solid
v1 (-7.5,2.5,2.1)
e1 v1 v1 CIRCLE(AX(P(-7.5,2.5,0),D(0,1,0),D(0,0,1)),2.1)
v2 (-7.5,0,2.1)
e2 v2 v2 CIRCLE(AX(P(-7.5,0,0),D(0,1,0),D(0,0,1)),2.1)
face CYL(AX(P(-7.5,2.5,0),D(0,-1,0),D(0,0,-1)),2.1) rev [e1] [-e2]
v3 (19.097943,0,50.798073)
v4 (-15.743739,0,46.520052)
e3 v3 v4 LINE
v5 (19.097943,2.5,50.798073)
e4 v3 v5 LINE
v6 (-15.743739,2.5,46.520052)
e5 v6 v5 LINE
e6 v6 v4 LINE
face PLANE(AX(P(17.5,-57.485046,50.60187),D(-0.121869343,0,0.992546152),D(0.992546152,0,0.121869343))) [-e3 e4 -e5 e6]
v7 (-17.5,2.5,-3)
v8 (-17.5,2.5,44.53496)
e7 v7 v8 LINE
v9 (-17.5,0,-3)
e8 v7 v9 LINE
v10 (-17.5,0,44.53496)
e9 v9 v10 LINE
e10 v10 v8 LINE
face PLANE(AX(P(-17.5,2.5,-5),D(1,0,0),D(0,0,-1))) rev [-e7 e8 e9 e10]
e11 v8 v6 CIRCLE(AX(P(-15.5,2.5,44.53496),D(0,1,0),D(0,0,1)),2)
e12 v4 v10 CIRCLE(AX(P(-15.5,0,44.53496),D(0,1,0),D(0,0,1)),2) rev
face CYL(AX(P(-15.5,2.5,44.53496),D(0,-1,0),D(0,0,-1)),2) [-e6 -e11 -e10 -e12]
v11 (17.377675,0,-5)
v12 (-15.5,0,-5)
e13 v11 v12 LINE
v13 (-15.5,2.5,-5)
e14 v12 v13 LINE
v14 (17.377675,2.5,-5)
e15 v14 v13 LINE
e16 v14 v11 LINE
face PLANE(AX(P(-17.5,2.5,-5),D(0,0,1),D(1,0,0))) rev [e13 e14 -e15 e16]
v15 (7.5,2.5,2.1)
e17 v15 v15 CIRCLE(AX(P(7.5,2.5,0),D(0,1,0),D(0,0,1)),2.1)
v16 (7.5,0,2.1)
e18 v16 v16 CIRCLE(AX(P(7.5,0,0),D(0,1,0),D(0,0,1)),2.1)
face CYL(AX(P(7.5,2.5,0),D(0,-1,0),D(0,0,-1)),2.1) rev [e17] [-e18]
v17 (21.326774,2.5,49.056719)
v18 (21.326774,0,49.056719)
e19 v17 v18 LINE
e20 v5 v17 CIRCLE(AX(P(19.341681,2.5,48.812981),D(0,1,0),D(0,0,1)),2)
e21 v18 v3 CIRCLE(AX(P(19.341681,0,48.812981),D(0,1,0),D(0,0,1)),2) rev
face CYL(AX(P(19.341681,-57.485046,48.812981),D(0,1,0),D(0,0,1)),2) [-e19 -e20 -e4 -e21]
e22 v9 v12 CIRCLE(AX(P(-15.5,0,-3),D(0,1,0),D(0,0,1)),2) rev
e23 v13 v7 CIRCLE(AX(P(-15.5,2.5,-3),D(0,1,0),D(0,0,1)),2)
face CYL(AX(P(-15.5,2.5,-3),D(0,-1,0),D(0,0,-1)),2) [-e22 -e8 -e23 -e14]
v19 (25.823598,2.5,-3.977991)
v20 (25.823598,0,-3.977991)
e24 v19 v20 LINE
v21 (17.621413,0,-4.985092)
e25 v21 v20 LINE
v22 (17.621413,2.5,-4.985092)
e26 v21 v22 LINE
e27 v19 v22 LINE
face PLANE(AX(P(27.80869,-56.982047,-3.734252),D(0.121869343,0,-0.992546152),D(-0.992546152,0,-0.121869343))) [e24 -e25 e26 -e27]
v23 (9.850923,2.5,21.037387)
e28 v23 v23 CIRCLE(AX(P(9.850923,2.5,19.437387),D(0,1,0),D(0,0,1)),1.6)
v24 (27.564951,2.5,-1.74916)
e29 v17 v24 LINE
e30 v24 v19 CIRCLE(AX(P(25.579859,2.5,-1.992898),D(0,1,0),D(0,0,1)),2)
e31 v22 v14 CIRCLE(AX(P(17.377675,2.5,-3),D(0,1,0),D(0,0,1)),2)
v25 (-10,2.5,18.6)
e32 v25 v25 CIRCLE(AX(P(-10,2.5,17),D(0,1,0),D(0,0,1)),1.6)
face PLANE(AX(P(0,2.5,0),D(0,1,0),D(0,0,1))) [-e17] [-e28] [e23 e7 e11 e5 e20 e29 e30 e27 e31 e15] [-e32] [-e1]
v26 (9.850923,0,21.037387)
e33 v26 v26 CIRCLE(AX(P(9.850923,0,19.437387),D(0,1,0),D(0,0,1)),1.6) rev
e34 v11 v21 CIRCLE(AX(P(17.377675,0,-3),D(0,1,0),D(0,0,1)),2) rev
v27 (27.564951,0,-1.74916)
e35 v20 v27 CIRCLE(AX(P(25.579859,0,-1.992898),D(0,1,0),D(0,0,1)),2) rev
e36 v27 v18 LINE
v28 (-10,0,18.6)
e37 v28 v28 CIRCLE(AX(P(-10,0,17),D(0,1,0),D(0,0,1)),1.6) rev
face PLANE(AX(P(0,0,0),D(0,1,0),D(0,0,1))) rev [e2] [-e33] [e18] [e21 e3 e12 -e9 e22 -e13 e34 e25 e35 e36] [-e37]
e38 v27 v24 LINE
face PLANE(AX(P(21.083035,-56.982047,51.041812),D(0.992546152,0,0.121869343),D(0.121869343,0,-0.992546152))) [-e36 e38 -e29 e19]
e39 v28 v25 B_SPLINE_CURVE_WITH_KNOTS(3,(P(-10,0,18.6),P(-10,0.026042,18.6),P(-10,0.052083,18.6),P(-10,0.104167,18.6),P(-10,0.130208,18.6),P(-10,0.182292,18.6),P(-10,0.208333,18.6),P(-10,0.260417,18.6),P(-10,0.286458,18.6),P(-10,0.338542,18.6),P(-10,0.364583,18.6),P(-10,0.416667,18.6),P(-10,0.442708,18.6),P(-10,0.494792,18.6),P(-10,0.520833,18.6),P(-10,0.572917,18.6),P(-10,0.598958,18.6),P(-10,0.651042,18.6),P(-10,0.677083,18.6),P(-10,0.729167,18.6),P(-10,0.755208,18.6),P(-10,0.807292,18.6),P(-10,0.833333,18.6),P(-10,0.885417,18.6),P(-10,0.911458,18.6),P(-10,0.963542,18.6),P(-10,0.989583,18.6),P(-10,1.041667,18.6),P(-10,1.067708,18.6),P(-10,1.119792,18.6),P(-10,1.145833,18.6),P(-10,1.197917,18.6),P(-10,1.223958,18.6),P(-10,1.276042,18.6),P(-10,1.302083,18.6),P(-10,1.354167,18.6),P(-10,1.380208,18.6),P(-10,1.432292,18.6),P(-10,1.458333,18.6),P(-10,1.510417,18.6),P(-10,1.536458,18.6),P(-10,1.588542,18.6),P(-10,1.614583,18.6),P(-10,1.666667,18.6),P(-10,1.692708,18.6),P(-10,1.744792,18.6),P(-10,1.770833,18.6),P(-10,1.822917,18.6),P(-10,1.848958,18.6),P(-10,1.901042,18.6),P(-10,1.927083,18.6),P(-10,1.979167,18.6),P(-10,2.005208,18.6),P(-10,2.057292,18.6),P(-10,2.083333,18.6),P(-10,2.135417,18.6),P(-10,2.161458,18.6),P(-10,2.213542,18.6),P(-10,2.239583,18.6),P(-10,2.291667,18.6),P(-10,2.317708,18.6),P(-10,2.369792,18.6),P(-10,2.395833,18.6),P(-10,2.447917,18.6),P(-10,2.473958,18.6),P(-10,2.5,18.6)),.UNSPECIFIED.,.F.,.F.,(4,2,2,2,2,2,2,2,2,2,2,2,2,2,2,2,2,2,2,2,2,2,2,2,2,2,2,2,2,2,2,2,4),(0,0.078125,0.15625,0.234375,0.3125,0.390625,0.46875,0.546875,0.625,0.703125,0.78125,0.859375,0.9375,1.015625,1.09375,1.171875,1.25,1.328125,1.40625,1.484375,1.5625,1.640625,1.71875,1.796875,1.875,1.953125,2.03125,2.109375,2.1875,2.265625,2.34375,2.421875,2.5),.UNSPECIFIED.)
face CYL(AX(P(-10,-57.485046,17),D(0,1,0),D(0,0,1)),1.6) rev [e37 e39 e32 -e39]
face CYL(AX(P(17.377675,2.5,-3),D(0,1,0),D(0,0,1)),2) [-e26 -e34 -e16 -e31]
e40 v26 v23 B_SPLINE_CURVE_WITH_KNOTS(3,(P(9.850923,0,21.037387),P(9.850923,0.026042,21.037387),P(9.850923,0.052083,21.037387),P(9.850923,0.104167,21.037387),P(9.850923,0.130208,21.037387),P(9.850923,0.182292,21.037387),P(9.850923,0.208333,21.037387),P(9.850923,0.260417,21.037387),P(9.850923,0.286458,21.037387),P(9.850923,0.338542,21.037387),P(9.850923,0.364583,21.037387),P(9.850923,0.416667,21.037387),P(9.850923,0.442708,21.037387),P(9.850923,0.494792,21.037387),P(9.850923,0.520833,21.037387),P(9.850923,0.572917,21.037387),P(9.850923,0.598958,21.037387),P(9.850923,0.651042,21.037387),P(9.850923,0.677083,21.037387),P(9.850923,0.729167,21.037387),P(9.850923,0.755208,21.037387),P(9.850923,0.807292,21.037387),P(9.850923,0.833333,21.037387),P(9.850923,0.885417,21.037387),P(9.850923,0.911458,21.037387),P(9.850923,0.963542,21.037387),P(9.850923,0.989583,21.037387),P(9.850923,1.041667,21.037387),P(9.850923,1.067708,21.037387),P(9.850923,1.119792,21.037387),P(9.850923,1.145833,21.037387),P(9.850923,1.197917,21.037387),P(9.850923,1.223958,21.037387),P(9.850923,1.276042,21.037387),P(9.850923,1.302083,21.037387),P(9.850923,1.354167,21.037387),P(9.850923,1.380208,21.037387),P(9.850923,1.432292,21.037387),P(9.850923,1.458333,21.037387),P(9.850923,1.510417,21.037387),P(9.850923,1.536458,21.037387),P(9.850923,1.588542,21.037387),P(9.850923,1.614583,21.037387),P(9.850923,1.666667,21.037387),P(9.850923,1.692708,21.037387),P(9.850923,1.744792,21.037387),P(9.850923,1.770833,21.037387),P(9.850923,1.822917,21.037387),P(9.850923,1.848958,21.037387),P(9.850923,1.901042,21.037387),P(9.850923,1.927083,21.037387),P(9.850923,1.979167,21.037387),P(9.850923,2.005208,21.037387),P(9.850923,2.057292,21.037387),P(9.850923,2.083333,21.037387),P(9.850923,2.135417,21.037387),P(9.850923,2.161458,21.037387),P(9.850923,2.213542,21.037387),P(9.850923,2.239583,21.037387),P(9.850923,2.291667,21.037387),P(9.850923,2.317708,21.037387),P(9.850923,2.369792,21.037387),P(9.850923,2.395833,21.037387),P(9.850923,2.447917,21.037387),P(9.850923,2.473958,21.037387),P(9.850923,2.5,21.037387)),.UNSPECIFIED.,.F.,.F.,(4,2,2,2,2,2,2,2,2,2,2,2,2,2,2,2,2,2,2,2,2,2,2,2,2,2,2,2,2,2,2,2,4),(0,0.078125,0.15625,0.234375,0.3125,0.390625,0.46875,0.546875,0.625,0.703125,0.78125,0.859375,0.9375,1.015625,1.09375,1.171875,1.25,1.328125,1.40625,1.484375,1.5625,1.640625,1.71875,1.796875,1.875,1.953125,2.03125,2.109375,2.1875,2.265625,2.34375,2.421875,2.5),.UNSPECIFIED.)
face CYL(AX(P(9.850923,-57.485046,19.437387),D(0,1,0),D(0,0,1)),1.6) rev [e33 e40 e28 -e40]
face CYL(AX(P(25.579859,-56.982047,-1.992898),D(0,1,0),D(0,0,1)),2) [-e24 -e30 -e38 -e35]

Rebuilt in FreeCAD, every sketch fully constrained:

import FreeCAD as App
import Part
import Sketcher
from FreeCAD import Vector
Q = App.Units.Quantity


def edges_at(feature, points):
    """Names of the edges that pass closest to the given points."""
    edges = feature.Shape.Edges
    near = lambda p: min(range(len(edges)), key=lambda i: edges[i].distToShape(Part.Vertex(*p))[0])
    return sorted({f"Edge{near(p) + 1}" for p in points})


def add_polygon(sketch, points):
    """Adds a closed chain of lines whose ends are joined by coincident constraints."""
    first, n = sketch.GeometryCount, len(points)
    for a, b in zip(points, points[1:] + points[:1]):
        sketch.addGeometry(Part.LineSegment(App.Vector(*a, 0), App.Vector(*b, 0)), False)
    for i in range(n):
        sketch.addConstraint(Sketcher.Constraint("Coincident", first + i, 2, first + (i + 1) % n, 1))

doc = App.newDocument("Part")
body = doc.addObject("PartDesign::Body", "Body")

sketch1 = body.newObject("Sketcher::SketchObject", "Sketch")
sketch1.AttachmentSupport = (doc.getObject("XZ_Plane"), [""])
sketch1.MapMode = "FlatFace"
add_polygon(sketch1, [(-17.5, -5), (-17.5, 5), (17.5, 5), (17.5, -5)])
sketch1.addGeometry(Part.Circle(Vector(-7.5, 0, 0), Vector(0, 0, 1), 2.1), False)
sketch1.addGeometry(Part.Circle(Vector(7.5, 0, 0), Vector(0, 0, 1), 2.1), False)
sketch1.addConstraint([
    Sketcher.Constraint("Vertical", 0),
    Sketcher.Constraint("Horizontal", 1),
    Sketcher.Constraint("Vertical", 2),
    Sketcher.Constraint("Horizontal", 3),
    Sketcher.Constraint("Equal", 4, 5),
    Sketcher.Constraint("Symmetric", 4, 3, 5, 3, -1, 1),
    Sketcher.Constraint("Symmetric", 0, 2, 2, 2, -1, 1),
    Sketcher.Constraint("PointOnObject", 4, 3, -1),
    Sketcher.Constraint("Diameter", 4, Q("4.2 mm")),
    Sketcher.Constraint("DistanceX", 1, 1, 1, 2, Q("35 mm")),
    Sketcher.Constraint("DistanceY", 0, 1, 0, 2, Q("10 mm")),
    Sketcher.Constraint("DistanceX", 4, 3, 5, 3, Q("15 mm")),
])
pad1 = body.newObject("PartDesign::Pad", "Pad")
pad1.Profile = sketch1
pad1.Length = 2.5
pad1.Reversed = True

sketch2 = body.newObject("Sketcher::SketchObject", "Sketch001")
sketch2.AttachmentSupport = (doc.getObject("XZ_Plane"), [""])
sketch2.MapMode = "FlatFace"
sketch2.AttachmentOffset = App.Placement(Vector(0, 0, -2.5), App.Rotation())
add_polygon(sketch2, [(17.5, 5), (-17.5, 5), (-17.5, 46.3), (17.5, 50.6)])
sketch2.addGeometry(Part.Circle(Vector(9.9, 19.4, 0), Vector(0, 0, 1), 1.6), False)
sketch2.addGeometry(Part.Circle(Vector(-10, 17, 0), Vector(0, 0, 1), 1.6), False)
sketch2.addConstraint([
    Sketcher.Constraint("Horizontal", 0),
    Sketcher.Constraint("Vertical", 1),
    Sketcher.Constraint("Vertical", 3),
    Sketcher.Constraint("Equal", 4, 5),
    Sketcher.Constraint("Diameter", 4, Q("3.2 mm")),
    Sketcher.Constraint("DistanceX", 0, 2, 0, 1, Q("35 mm")),
    Sketcher.Constraint("Angle", 2, Q("7 deg")),
    Sketcher.Constraint("DistanceX", 5, 3, -1, 1, Q("10 mm")),
    Sketcher.Constraint("DistanceY", -1, 1, 5, 3, Q("17 mm")),
    Sketcher.Constraint("DistanceY", -1, 1, 0, 2, Q("5 mm")),
    Sketcher.Constraint("DistanceX", 0, 2, -1, 1, Q("17.5 mm")),
    Sketcher.Constraint("DistanceY", 1, 1, 1, 2, Q("41.304411 mm")),
    Sketcher.Constraint("DistanceX", -1, 1, 4, 3, Q("9.850923 mm")),
    Sketcher.Constraint("DistanceY", -1, 1, 4, 3, Q("19.437387 mm")),
])
pad2 = body.newObject("PartDesign::Pad", "Pad001")
pad2.Profile = sketch2
pad2.Length = 2.5

sketch3 = body.newObject("Sketcher::SketchObject", "Sketch002")
sketch3.AttachmentSupport = (doc.getObject("XZ_Plane"), [""])
sketch3.MapMode = "FlatFace"
sketch3.AttachmentOffset = App.Placement(Vector(0, 0, -2.5), App.Rotation())
add_polygon(sketch3, [(21.1, 51), (27.8, -3.7), (17.5, -5), (17.5, 50.6)])
sketch3.addConstraint([
    Sketcher.Constraint("Vertical", 2),
    Sketcher.Constraint("Perpendicular", 0, 1),
    Sketcher.Constraint("Parallel", 1, 3),
    Sketcher.Constraint("Angle", 0, Q("-83 deg")),
    Sketcher.Constraint("DistanceY", 1, 2, -1, 1, Q("5 mm")),
    Sketcher.Constraint("DistanceX", -1, 1, 1, 2, Q("17.5 mm")),
    Sketcher.Constraint("DistanceY", 2, 1, 2, 2, Q("55.60187 mm")),
    Sketcher.Constraint("DistanceX", -1, 1, 0, 2, Q("27.80869 mm")),
])
pad3 = body.newObject("PartDesign::Pad", "Pad002")
pad3.Profile = sketch3
pad3.Length = 2.5
doc.recompute()

fillet = body.newObject("PartDesign::Fillet", "Fillet")
fillet.Base = (pad3, edges_at(pad3, [
    (-17.5, 1.25, 46.304),
    (21.083, 1.25, 51.042),
    (27.809, 1.25, -3.734),
    (-17.5, 1.25, -5),
    (17.5, 1.25, -5),
]))
fillet.Radius = 2

doc.recompute()
